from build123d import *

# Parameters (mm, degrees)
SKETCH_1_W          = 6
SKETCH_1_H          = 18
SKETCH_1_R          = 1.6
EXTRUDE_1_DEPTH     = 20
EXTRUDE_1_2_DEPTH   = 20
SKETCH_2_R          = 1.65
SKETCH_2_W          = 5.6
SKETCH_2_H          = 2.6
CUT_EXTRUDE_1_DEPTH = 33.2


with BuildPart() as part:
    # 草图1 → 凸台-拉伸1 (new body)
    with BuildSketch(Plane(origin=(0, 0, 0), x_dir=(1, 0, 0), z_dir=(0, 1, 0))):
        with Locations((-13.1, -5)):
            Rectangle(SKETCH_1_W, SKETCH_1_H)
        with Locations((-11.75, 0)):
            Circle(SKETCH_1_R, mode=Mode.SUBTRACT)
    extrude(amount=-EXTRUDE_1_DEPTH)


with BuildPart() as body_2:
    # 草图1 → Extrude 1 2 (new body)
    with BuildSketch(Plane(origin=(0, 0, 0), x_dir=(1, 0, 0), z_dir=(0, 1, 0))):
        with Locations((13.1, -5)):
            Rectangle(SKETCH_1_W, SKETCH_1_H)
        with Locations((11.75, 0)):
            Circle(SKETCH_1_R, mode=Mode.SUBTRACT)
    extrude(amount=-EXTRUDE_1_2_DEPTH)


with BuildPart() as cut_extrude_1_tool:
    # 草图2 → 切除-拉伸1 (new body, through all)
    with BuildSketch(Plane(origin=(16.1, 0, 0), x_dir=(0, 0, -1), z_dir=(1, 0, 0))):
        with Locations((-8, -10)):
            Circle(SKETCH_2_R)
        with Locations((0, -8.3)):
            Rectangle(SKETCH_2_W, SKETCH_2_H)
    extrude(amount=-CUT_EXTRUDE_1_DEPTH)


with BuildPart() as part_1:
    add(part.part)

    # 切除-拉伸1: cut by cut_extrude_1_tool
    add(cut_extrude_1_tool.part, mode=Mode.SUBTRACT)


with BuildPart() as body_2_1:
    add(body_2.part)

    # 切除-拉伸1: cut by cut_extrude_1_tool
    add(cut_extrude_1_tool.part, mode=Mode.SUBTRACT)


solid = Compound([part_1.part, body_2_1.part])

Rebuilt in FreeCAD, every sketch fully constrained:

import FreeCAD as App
import Part
import Sketcher
from FreeCAD import Vector
Q = App.Units.Quantity


def add_polygon(sketch, points):
    """Adds a closed chain of lines whose ends are joined by coincident constraints."""
    first, n = sketch.GeometryCount, len(points)
    for a, b in zip(points, points[1:] + points[:1]):
        sketch.addGeometry(Part.LineSegment(App.Vector(*a, 0), App.Vector(*b, 0)), False)
    for i in range(n):
        sketch.addConstraint(Sketcher.Constraint("Coincident", first + i, 2, first + (i + 1) % n, 1))

doc = App.newDocument("Part")
body = doc.addObject("PartDesign::Body", "Body")

sketch1 = body.newObject("Sketcher::SketchObject", "Sketch")
sketch1.AttachmentSupport = (doc.getObject("XZ_Plane"), [""])
sketch1.MapMode = "FlatFace"
add_polygon(sketch1, [(-16.1, -4), (-16.1, 14), (-10.1, 14), (-10.1, -4)])
sketch1.addGeometry(Part.Circle(Vector(-11.8, 0, 0), Vector(0, 0, 1), 1.6), False)
sketch1.addConstraint([
    Sketcher.Constraint("Vertical", 0),
    Sketcher.Constraint("Horizontal", 1),
    Sketcher.Constraint("Vertical", 2),
    Sketcher.Constraint("Horizontal", 3),
    Sketcher.Constraint("PointOnObject", 4, 3, -1),
    Sketcher.Constraint("Diameter", 4, Q("3.2 mm")),
    Sketcher.Constraint("DistanceX", 1, 1, 1, 2, Q("6 mm")),
    Sketcher.Constraint("DistanceY", 0, 1, 0, 2, Q("18 mm")),
    Sketcher.Constraint("DistanceY", -1, 1, 0, 2, Q("14 mm")),
    Sketcher.Constraint("DistanceX", 0, 2, -1, 1, Q("16.1 mm")),
    Sketcher.Constraint("DistanceX", 4, 3, -1, 1, Q("11.75 mm")),
])
pad1 = body.newObject("PartDesign::Pad", "Pad")
pad1.Profile = sketch1
pad1.Length = 20
body2 = doc.addObject("PartDesign::Body", "Body001")

sketch2 = body2.newObject("Sketcher::SketchObject", "Sketch001")
sketch2.AttachmentSupport = (doc.getObject("XZ_Plane001"), [""])
sketch2.MapMode = "FlatFace"
add_polygon(sketch2, [(10.1, -4), (10.1, 14), (16.1, 14), (16.1, -4)])
sketch2.addGeometry(Part.Circle(Vector(11.8, 0, 0), Vector(0, 0, 1), 1.6), False)
sketch2.addConstraint([
    Sketcher.Constraint("Vertical", 0),
    Sketcher.Constraint("Horizontal", 1),
    Sketcher.Constraint("Vertical", 2),
    Sketcher.Constraint("Horizontal", 3),
    Sketcher.Constraint("PointOnObject", 4, 3, -1),
    Sketcher.Constraint("Diameter", 4, Q("3.2 mm")),
    Sketcher.Constraint("DistanceX", 1, 1, 1, 2, Q("6 mm")),
    Sketcher.Constraint("DistanceY", 0, 1, 0, 2, Q("18 mm")),
    Sketcher.Constraint("DistanceY", -1, 1, 0, 2, Q("14 mm")),
    Sketcher.Constraint("DistanceX", -1, 1, 0, 2, Q("10.1 mm")),
    Sketcher.Constraint("DistanceX", -1, 1, 4, 3, Q("11.75 mm")),
])
pad2 = body2.newObject("PartDesign::Pad", "Pad001")
pad2.Profile = sketch2
pad2.Length = 20
body3 = doc.addObject("PartDesign::Body", "Body002")
body3.AllowCompound = True

sketch3 = body3.newObject("Sketcher::SketchObject", "Sketch002")
sketch3.AttachmentSupport = (doc.getObject("YZ_Plane002"), [""])
sketch3.MapMode = "FlatFace"
sketch3.AttachmentOffset = App.Placement(Vector(0, 0, 16.1), App.Rotation())
sketch3.addGeometry(Part.Circle(Vector(-10, 8, 0), Vector(0, 0, 1), 1.6), False)
add_polygon(sketch3, [(-7, 2.8), (-9.6, 2.8), (-9.6, -2.8), (-7, -2.8)])
sketch3.addConstraint([
    Sketcher.Constraint("Horizontal", 1),
    Sketcher.Constraint("Vertical", 2),
    Sketcher.Constraint("Horizontal", 3),
    Sketcher.Constraint("Vertical", 4),
    Sketcher.Constraint("Diameter", 0, Q("3.3 mm")),
    Sketcher.Constraint("DistanceX", 1, 2, 1, 1, Q("2.6 mm")),
    Sketcher.Constraint("DistanceY", 2, 2, 2, 1, Q("5.6 mm")),
    Sketcher.Constraint("DistanceX", 0, 3, -1, 1, Q("10 mm")),
    Sketcher.Constraint("DistanceY", -1, 1, 0, 3, Q("8 mm")),
    Sketcher.Constraint("DistanceX", 3, 2, -1, 1, Q("7 mm")),
    Sketcher.Constraint("DistanceY", -1, 1, 1, 2, Q("2.8 mm")),
])
pad3 = body3.newObject("PartDesign::Pad", "Pad002")
pad3.Profile = sketch3
pad3.Length = 33.2
pad3.Reversed = True
doc.recompute()

body4 = doc.addObject("PartDesign::Body", "Body003")
body4.BaseFeature = body3
boolean = body.newObject("PartDesign::Boolean", "Boolean")
boolean.Type = "Cut"
boolean.addObjects([body4])
doc.recompute()

boolean2 = body2.newObject("PartDesign::Boolean", "Boolean001")
boolean2.Type = "Cut"
boolean2.addObjects([body3])

doc.recompute()
